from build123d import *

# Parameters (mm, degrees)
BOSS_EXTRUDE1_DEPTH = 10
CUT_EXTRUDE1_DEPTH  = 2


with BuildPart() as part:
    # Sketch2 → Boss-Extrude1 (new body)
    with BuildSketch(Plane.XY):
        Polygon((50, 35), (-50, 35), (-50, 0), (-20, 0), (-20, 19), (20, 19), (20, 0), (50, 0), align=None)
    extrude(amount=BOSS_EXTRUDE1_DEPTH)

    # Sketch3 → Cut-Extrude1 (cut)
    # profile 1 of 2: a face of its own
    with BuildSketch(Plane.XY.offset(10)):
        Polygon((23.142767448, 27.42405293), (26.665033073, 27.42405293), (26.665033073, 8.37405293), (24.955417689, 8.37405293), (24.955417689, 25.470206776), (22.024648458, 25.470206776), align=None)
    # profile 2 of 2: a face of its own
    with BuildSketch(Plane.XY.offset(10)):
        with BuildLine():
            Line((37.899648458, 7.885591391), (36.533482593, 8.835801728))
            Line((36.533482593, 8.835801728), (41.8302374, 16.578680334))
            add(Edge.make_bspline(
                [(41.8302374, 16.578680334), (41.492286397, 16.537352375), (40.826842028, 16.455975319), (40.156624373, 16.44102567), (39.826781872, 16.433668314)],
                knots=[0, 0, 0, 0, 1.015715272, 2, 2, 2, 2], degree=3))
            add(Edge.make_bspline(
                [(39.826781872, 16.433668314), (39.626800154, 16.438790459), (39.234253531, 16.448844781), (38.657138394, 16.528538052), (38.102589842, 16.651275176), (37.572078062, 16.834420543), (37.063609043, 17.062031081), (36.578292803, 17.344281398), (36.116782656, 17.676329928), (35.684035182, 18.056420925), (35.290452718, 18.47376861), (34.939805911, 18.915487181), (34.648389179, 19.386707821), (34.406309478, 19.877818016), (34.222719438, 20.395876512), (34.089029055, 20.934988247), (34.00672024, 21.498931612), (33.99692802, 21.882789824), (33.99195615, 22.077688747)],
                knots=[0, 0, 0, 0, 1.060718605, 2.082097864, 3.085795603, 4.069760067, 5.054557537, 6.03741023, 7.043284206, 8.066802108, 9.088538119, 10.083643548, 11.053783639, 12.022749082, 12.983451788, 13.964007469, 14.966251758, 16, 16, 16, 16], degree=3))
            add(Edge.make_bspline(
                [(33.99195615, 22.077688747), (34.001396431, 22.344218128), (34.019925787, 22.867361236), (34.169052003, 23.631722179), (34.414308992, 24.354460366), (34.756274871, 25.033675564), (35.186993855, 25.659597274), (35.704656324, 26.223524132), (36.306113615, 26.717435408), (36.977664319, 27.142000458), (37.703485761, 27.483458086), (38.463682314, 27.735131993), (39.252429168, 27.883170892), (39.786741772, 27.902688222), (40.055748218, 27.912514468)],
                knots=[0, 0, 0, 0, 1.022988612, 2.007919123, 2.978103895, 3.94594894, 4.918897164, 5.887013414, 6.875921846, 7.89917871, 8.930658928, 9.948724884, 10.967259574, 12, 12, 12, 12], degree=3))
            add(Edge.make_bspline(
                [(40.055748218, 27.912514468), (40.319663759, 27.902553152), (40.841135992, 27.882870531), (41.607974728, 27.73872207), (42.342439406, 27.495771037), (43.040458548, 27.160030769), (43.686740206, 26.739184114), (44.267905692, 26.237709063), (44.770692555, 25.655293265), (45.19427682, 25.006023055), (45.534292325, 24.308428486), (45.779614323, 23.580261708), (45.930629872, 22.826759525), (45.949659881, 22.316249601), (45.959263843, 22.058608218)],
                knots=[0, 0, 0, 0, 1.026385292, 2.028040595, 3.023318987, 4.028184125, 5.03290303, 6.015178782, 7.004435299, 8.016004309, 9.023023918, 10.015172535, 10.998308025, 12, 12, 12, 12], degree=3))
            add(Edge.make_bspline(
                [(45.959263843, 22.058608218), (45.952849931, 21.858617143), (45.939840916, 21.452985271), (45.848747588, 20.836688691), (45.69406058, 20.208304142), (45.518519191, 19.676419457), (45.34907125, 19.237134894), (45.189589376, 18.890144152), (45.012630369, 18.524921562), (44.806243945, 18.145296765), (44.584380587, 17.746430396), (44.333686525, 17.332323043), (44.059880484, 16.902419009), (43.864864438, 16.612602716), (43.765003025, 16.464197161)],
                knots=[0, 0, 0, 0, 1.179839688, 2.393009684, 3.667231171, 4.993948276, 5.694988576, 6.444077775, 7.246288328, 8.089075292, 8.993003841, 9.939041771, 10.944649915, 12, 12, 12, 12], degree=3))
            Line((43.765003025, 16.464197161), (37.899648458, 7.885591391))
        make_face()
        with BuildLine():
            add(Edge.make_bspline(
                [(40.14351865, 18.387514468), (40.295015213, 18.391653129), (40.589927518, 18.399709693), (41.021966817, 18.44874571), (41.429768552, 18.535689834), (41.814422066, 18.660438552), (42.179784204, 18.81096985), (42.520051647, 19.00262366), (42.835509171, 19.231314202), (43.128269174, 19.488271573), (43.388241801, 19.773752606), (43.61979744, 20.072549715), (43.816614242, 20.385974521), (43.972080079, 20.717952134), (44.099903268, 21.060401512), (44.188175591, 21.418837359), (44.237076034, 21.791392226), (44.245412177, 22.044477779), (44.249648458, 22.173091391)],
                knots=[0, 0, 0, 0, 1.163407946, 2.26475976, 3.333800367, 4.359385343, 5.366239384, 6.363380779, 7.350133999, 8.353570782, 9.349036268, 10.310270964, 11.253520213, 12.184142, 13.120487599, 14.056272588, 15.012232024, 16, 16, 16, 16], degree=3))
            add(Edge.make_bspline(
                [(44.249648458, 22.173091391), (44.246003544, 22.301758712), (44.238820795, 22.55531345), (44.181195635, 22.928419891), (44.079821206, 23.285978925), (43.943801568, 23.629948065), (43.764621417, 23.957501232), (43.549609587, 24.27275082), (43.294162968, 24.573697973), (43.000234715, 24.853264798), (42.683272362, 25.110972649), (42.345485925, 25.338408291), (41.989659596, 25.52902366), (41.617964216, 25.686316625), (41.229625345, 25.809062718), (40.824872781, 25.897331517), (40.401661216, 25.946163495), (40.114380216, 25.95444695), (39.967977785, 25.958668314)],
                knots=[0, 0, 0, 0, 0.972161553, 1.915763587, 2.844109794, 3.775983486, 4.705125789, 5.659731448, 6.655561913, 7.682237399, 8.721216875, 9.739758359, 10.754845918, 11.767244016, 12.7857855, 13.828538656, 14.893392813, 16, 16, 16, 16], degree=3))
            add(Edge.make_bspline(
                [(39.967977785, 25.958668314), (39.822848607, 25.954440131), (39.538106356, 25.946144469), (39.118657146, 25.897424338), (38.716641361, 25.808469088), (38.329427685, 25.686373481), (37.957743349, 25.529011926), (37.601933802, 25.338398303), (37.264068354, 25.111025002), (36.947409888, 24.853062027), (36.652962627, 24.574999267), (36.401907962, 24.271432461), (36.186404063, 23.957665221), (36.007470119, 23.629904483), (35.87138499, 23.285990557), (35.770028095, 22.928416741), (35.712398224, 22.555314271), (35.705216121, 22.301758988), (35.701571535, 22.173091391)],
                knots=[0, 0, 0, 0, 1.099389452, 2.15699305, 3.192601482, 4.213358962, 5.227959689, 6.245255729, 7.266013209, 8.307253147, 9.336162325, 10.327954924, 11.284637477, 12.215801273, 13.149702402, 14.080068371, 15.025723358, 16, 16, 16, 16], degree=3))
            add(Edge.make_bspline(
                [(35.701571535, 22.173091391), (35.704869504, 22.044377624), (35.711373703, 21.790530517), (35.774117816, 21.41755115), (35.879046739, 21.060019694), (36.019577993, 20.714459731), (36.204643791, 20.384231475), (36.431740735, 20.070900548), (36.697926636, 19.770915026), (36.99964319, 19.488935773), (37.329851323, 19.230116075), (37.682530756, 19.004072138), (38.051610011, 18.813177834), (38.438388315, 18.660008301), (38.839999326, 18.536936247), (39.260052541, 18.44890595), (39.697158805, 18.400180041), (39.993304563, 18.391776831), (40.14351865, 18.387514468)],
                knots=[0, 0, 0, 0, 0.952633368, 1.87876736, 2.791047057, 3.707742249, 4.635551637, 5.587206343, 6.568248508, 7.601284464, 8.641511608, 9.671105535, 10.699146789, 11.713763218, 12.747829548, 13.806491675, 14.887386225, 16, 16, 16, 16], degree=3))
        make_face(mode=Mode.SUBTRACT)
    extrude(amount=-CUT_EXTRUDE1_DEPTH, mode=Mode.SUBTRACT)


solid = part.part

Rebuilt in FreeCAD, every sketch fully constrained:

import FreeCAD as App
import Part
import Sketcher
Q = App.Units.Quantity

doc = App.newDocument("Part")
params = doc.addObject("Spreadsheet::Sheet", "Params")
for row, (alias, value) in enumerate([
    ("sketch1_width", "100 mm"),
    ("sketch1_width2", "30 mm"),
    ("sketch1_height", "35 mm"),
    ("sketch1_height2", "19 mm"),
    ("pad1_length", "10 mm"),
    ("sketch2_height", "19.05 mm"),
    ("pocket1_length", "2 mm"),
], start=1):
    params.set(f"A{row}", alias)
    params.set(f"B{row}", "=" + value)
    params.setAlias(f"B{row}", alias)

body = doc.addObject("PartDesign::Body", "Body")

sketch1 = body.newObject("Sketcher::SketchObject", "Sketch")
sketch1.AttachmentSupport = (doc.getObject("XY_Plane"), [""])
sketch1.MapMode = "FlatFace"
sketch1.addGeometry([
    Part.LineSegment(App.Vector(50, 35, 0), App.Vector(-50, 35, 0)),
    Part.LineSegment(App.Vector(-50, 35, 0), App.Vector(-50, 0, 0)),
    Part.LineSegment(App.Vector(-50, 0, 0), App.Vector(-20, 0, 0)),
    Part.LineSegment(App.Vector(-20, 0, 0), App.Vector(-20, 19, 0)),
    Part.LineSegment(App.Vector(-20, 19, 0), App.Vector(20, 19, 0)),
    Part.LineSegment(App.Vector(20, 19, 0), App.Vector(20, 0, 0)),
    Part.LineSegment(App.Vector(20, 0, 0), App.Vector(50, 0, 0)),
    Part.LineSegment(App.Vector(50, 0, 0), App.Vector(50, 35, 0)),
], False)
sketch1.addConstraint([
    Sketcher.Constraint("Coincident", 0, 2, 1, 1),
    Sketcher.Constraint("Coincident", 1, 2, 2, 1),
    Sketcher.Constraint("Coincident", 2, 2, 3, 1),
    Sketcher.Constraint("Coincident", 3, 2, 4, 1),
    Sketcher.Constraint("Coincident", 4, 2, 5, 1),
    Sketcher.Constraint("Coincident", 5, 2, 6, 1),
    Sketcher.Constraint("Coincident", 6, 2, 7, 1),
    Sketcher.Constraint("Coincident", 7, 2, 0, 1),
    Sketcher.Constraint("Horizontal", 0),
    Sketcher.Constraint("Vertical", 1),
    Sketcher.Constraint("Horizontal", 2),
    Sketcher.Constraint("Vertical", 3),
    Sketcher.Constraint("Horizontal", 4),
    Sketcher.Constraint("Vertical", 5),
    Sketcher.Constraint("Horizontal", 6),
    Sketcher.Constraint("Vertical", 7),
    Sketcher.Constraint("Symmetric", 2, 2, 5, 2, -1, 1),
    Sketcher.Constraint("Symmetric", 1, 2, 6, 2, -2),
    Sketcher.Constraint("DistanceX", 0, 2, 0, 1, Q("100 mm")),
    Sketcher.Constraint("DistanceX", 2, 1, 2, 2, Q("30 mm")),
    Sketcher.Constraint("DistanceY", 1, 2, 1, 1, Q("35 mm")),
    Sketcher.Constraint("DistanceY", 3, 1, 3, 2, Q("19 mm")),
])
sketch1.setExpression("Constraints[18]", "Params.sketch1_width")
sketch1.setExpression("Constraints[19]", "Params.sketch1_width2")
sketch1.setExpression("Constraints[20]", "Params.sketch1_height")
sketch1.setExpression("Constraints[21]", "Params.sketch1_height2")
pad1 = body.newObject("PartDesign::Pad", "Pad")
pad1.Profile = sketch1
pad1.setExpression("Length", "Params.pad1_length")

sketch2 = body.newObject("Sketcher::SketchObject", "Sketch001")
sketch2.AttachmentSupport = (doc.getObject("XY_Plane"), [""])
sketch2.MapMode = "FlatFace"
sketch2.AttachmentOffset = App.Placement(App.Vector(0, 0, 10), App.Rotation())
sketch2.addGeometry([
    Part.LineSegment(App.Vector(26.665033, 27.424053, 0), App.Vector(23.142767, 27.424053, 0)),
    Part.LineSegment(App.Vector(23.142767, 27.424053, 0), App.Vector(22.024648, 25.470207, 0)),
    Part.LineSegment(App.Vector(22.024648, 25.470207, 0), App.Vector(24.955418, 25.470207, 0)),
    Part.LineSegment(App.Vector(24.955418, 25.470207, 0), App.Vector(24.955418, 8.374053, 0)),
    Part.LineSegment(App.Vector(24.955418, 8.374053, 0), App.Vector(26.665033, 8.374053, 0)),
    Part.LineSegment(App.Vector(26.665033, 8.374053, 0), App.Vector(26.665033, 27.424053, 0)),
    Part.LineSegment(App.Vector(36.533483, 8.835802, 0), App.Vector(37.899648, 7.885591, 0)),
    Part.LineSegment(App.Vector(37.899648, 7.885591, 0), App.Vector(43.765003, 16.464197, 0)),
    Part.BSplineCurve([App.Vector(45.959264, 22.058608, 0), App.Vector(45.95285, 21.858617, 0), App.Vector(45.939841, 21.452985, 0), App.Vector(45.848748, 20.836689, 0), App.Vector(45.694061, 20.208304, 0), App.Vector(45.518519, 19.676419, 0), App.Vector(45.349071, 19.237135, 0), App.Vector(45.189589, 18.890144, 0), App.Vector(45.01263, 18.524922, 0), App.Vector(44.806244, 18.145297, 0), App.Vector(44.584381, 17.74643, 0), App.Vector(44.333687, 17.332323, 0), App.Vector(44.05988, 16.902419, 0), App.Vector(43.864864, 16.612603, 0), App.Vector(43.765003, 16.464197, 0)], [4, 1, 1, 1, 1, 1, 1, 1, 1, 1, 1, 1, 4], [0, 1.179839688, 2.393009684, 3.667231171, 4.993948276, 5.694988576, 6.444077775, 7.246288328, 8.089075292, 8.993003841, 9.939041771, 10.944649915, 12], False, 3, [1, 1, 1, 1, 1, 1, 1, 1, 1, 1, 1, 1, 1, 1, 1], False),
    Part.BSplineCurve([App.Vector(40.055748, 27.912514, 0), App.Vector(40.319664, 27.902553, 0), App.Vector(40.841136, 27.882871, 0), App.Vector(41.607975, 27.738722, 0), App.Vector(42.342439, 27.495771, 0), App.Vector(43.040459, 27.160031, 0), App.Vector(43.68674, 26.739184, 0), App.Vector(44.267906, 26.237709, 0), App.Vector(44.770693, 25.655293, 0), App.Vector(45.194277, 25.006023, 0), App.Vector(45.534292, 24.308428, 0), App.Vector(45.779614, 23.580262, 0), App.Vector(45.93063, 22.82676, 0), App.Vector(45.94966, 22.31625, 0), App.Vector(45.959264, 22.058608, 0)], [4, 1, 1, 1, 1, 1, 1, 1, 1, 1, 1, 1, 4], [0, 1.026385292, 2.028040595, 3.023318987, 4.028184125, 5.03290303, 6.015178782, 7.004435299, 8.016004309, 9.023023918, 10.015172535, 10.998308025, 12], False, 3, [1, 1, 1, 1, 1, 1, 1, 1, 1, 1, 1, 1, 1, 1, 1], False),
    Part.BSplineCurve([App.Vector(33.991956, 22.077689, 0), App.Vector(34.001396, 22.344218, 0), App.Vector(34.019926, 22.867361, 0), App.Vector(34.169052, 23.631722, 0), App.Vector(34.414309, 24.35446, 0), App.Vector(34.756275, 25.033676, 0), App.Vector(35.186994, 25.659597, 0), App.Vector(35.704656, 26.223524, 0), App.Vector(36.306114, 26.717435, 0), App.Vector(36.977664, 27.142, 0), App.Vector(37.703486, 27.483458, 0), App.Vector(38.463682, 27.735132, 0), App.Vector(39.252429, 27.883171, 0), App.Vector(39.786742, 27.902688, 0), App.Vector(40.055748, 27.912514, 0)], [4, 1, 1, 1, 1, 1, 1, 1, 1, 1, 1, 1, 4], [0, 1.022988612, 2.007919123, 2.978103895, 3.94594894, 4.918897164, 5.887013414, 6.875921846, 7.89917871, 8.930658928, 9.948724884, 10.967259574, 12], False, 3, [1, 1, 1, 1, 1, 1, 1, 1, 1, 1, 1, 1, 1, 1, 1], False),
    Part.BSplineCurve([App.Vector(39.826782, 16.433668, 0), App.Vector(39.6268, 16.43879, 0), App.Vector(39.234254, 16.448845, 0), App.Vector(38.657138, 16.528538, 0), App.Vector(38.10259, 16.651275, 0), App.Vector(37.572078, 16.834421, 0), App.Vector(37.063609, 17.062031, 0), App.Vector(36.578293, 17.344281, 0), App.Vector(36.116783, 17.67633, 0), App.Vector(35.684035, 18.056421, 0), App.Vector(35.290453, 18.473769, 0), App.Vector(34.939806, 18.915487, 0), App.Vector(34.648389, 19.386708, 0), App.Vector(34.406309, 19.877818, 0), App.Vector(34.222719, 20.395877, 0), App.Vector(34.089029, 20.934988, 0), App.Vector(34.00672, 21.498932, 0), App.Vector(33.996928, 21.88279, 0), App.Vector(33.991956, 22.077689, 0)], [4, 1, 1, 1, 1, 1, 1, 1, 1, 1, 1, 1, 1, 1, 1, 1, 4], [0, 1.060718605, 2.082097864, 3.085795603, 4.069760067, 5.054557537, 6.03741023, 7.043284206, 8.066802108, 9.088538119, 10.083643548, 11.053783639, 12.022749082, 12.983451788, 13.964007469, 14.966251758, 16], False, 3, [1, 1, 1, 1, 1, 1, 1, 1, 1, 1, 1, 1, 1, 1, 1, 1, 1, 1, 1], False),
    Part.BSplineCurve([App.Vector(41.830237, 16.57868, 0), App.Vector(41.492286, 16.537352, 0), App.Vector(40.826842, 16.455975, 0), App.Vector(40.156624, 16.441026, 0), App.Vector(39.826782, 16.433668, 0)], [4, 1, 4], [0, 1.015715272, 2], False, 3, [1, 1, 1, 1, 1], False),
    Part.LineSegment(App.Vector(41.830237, 16.57868, 0), App.Vector(36.533483, 8.835802, 0)),
    Part.BSplineCurve([App.Vector(35.701572, 22.173091, 0), App.Vector(35.70487, 22.044378, 0), App.Vector(35.711374, 21.790531, 0), App.Vector(35.774118, 21.417551, 0), App.Vector(35.879047, 21.06002, 0), App.Vector(36.019578, 20.71446, 0), App.Vector(36.204644, 20.384231, 0), App.Vector(36.431741, 20.070901, 0), App.Vector(36.697927, 19.770915, 0), App.Vector(36.999643, 19.488936, 0), App.Vector(37.329851, 19.230116, 0), App.Vector(37.682531, 19.004072, 0), App.Vector(38.05161, 18.813178, 0), App.Vector(38.438388, 18.660008, 0), App.Vector(38.839999, 18.536936, 0), App.Vector(39.260053, 18.448906, 0), App.Vector(39.697159, 18.40018, 0), App.Vector(39.993305, 18.391777, 0), App.Vector(40.143519, 18.387514, 0)], [4, 1, 1, 1, 1, 1, 1, 1, 1, 1, 1, 1, 1, 1, 1, 1, 4], [0, 0.952633368, 1.87876736, 2.791047057, 3.707742249, 4.635551637, 5.587206343, 6.568248508, 7.601284464, 8.641511608, 9.671105535, 10.699146789, 11.713763218, 12.747829548, 13.806491675, 14.887386225, 16], False, 3, [1, 1, 1, 1, 1, 1, 1, 1, 1, 1, 1, 1, 1, 1, 1, 1, 1, 1, 1], False),
    Part.BSplineCurve([App.Vector(39.967978, 25.958668, 0), App.Vector(39.822849, 25.95444, 0), App.Vector(39.538106, 25.946144, 0), App.Vector(39.118657, 25.897424, 0), App.Vector(38.716641, 25.808469, 0), App.Vector(38.329428, 25.686373, 0), App.Vector(37.957743, 25.529012, 0), App.Vector(37.601934, 25.338398, 0), App.Vector(37.264068, 25.111025, 0), App.Vector(36.94741, 24.853062, 0), App.Vector(36.652963, 24.574999, 0), App.Vector(36.401908, 24.271432, 0), App.Vector(36.186404, 23.957665, 0), App.Vector(36.00747, 23.629904, 0), App.Vector(35.871385, 23.285991, 0), App.Vector(35.770028, 22.928417, 0), App.Vector(35.712398, 22.555314, 0), App.Vector(35.705216, 22.301759, 0), App.Vector(35.701572, 22.173091, 0)], [4, 1, 1, 1, 1, 1, 1, 1, 1, 1, 1, 1, 1, 1, 1, 1, 4], [0, 1.099389452, 2.15699305, 3.192601482, 4.213358962, 5.227959689, 6.245255729, 7.266013209, 8.307253147, 9.336162325, 10.327954924, 11.284637477, 12.215801273, 13.149702402, 14.080068371, 15.025723358, 16], False, 3, [1, 1, 1, 1, 1, 1, 1, 1, 1, 1, 1, 1, 1, 1, 1, 1, 1, 1, 1], False),
    Part.BSplineCurve([App.Vector(44.249648, 22.173091, 0), App.Vector(44.246004, 22.301759, 0), App.Vector(44.238821, 22.555313, 0), App.Vector(44.181196, 22.92842, 0), App.Vector(44.079821, 23.285979, 0), App.Vector(43.943802, 23.629948, 0), App.Vector(43.764621, 23.957501, 0), App.Vector(43.54961, 24.272751, 0), App.Vector(43.294163, 24.573698, 0), App.Vector(43.000235, 24.853265, 0), App.Vector(42.683272, 25.110973, 0), App.Vector(42.345486, 25.338408, 0), App.Vector(41.98966, 25.529024, 0), App.Vector(41.617964, 25.686317, 0), App.Vector(41.229625, 25.809063, 0), App.Vector(40.824873, 25.897332, 0), App.Vector(40.401661, 25.946163, 0), App.Vector(40.11438, 25.954447, 0), App.Vector(39.967978, 25.958668, 0)], [4, 1, 1, 1, 1, 1, 1, 1, 1, 1, 1, 1, 1, 1, 1, 1, 4], [0, 0.972161553, 1.915763587, 2.844109794, 3.775983486, 4.705125789, 5.659731448, 6.655561913, 7.682237399, 8.721216875, 9.739758359, 10.754845918, 11.767244016, 12.7857855, 13.828538656, 14.893392813, 16], False, 3, [1, 1, 1, 1, 1, 1, 1, 1, 1, 1, 1, 1, 1, 1, 1, 1, 1, 1, 1], False),
    Part.BSplineCurve([App.Vector(40.143519, 18.387514, 0), App.Vector(40.295015, 18.391653, 0), App.Vector(40.589928, 18.39971, 0), App.Vector(41.021967, 18.448746, 0), App.Vector(41.429769, 18.53569, 0), App.Vector(41.814422, 18.660439, 0), App.Vector(42.179784, 18.81097, 0), App.Vector(42.520052, 19.002624, 0), App.Vector(42.835509, 19.231314, 0), App.Vector(43.128269, 19.488272, 0), App.Vector(43.388242, 19.773753, 0), App.Vector(43.619797, 20.07255, 0), App.Vector(43.816614, 20.385975, 0), App.Vector(43.97208, 20.717952, 0), App.Vector(44.099903, 21.060402, 0), App.Vector(44.188176, 21.418837, 0), App.Vector(44.237076, 21.791392, 0), App.Vector(44.245412, 22.044478, 0), App.Vector(44.249648, 22.173091, 0)], [4, 1, 1, 1, 1, 1, 1, 1, 1, 1, 1, 1, 1, 1, 1, 1, 4], [0, 1.163407946, 2.26475976, 3.333800367, 4.359385343, 5.366239384, 6.363380779, 7.350133999, 8.353570782, 9.349036268, 10.310270964, 11.253520213, 12.184142, 13.120487599, 14.056272588, 15.012232024, 16], False, 3, [1, 1, 1, 1, 1, 1, 1, 1, 1, 1, 1, 1, 1, 1, 1, 1, 1, 1, 1], False),
], False)
sketch2.addConstraint([
    Sketcher.Constraint("Block", 8),
    Sketcher.Constraint("Block", 9),
    Sketcher.Constraint("Block", 10),
    Sketcher.Constraint("Block", 11),
    Sketcher.Constraint("Block", 12),
    Sketcher.Constraint("Block", 14),
    Sketcher.Constraint("Block", 15),
    Sketcher.Constraint("Block", 16),
    Sketcher.Constraint("Block", 17),
    Sketcher.Constraint("Coincident", 0, 2, 1, 1),
    Sketcher.Constraint("Coincident", 1, 2, 2, 1),
    Sketcher.Constraint("Coincident", 2, 2, 3, 1),
    Sketcher.Constraint("Coincident", 3, 2, 4, 1),
    Sketcher.Constraint("Coincident", 4, 2, 5, 1),
    Sketcher.Constraint("Coincident", 5, 2, 0, 1),
    Sketcher.Constraint("Coincident", 6, 2, 7, 1),
    Sketcher.Constraint("Coincident", 7, 2, 8, 2),
    Sketcher.Constraint("Coincident", 12, 1, 13, 1),
    Sketcher.Constraint("Coincident", 13, 2, 6, 1),
    Sketcher.Constraint("Horizontal", 0),
    Sketcher.Constraint("Horizontal", 2),
    Sketcher.Constraint("Vertical", 3),
    Sketcher.Constraint("Horizontal", 4),
    Sketcher.Constraint("Vertical", 5),
    Sketcher.Constraint("DistanceY", 5, 1, 5, 2, Q("19.05 mm")),
    Sketcher.Constraint("DistanceX", 1, 2, 6, 2, Q("15.875 mm")),
    Sketcher.Constraint("DistanceX", 2, 1, 2, 2, Q("2.930769 mm")),
    Sketcher.Constraint("DistanceY", -1, 1, 13, 2, Q("8.835802 mm")),
    Sketcher.Constraint("DistanceX", 0, 2, 0, 1, Q("3.522266 mm")),
    Sketcher.Constraint("DistanceX", 4, 1, 4, 2, Q("1.709615 mm")),
    Sketcher.Constraint("DistanceY", 3, 2, 3, 1, Q("17.096154 mm")),
    Sketcher.Constraint("DistanceX", -1, 1, 1, 2, Q("22.024648 mm")),
    Sketcher.Constraint("DistanceY", -1, 1, 6, 2, Q("7.885591 mm")),
    Sketcher.Constraint("DistanceY", 6, 2, 4, 2, Q("0.488462 mm")),
    Sketcher.Constraint("DistanceX", 4, 2, 13, 2, Q("9.86845 mm")),
])
sketch2.setExpression("Constraints[24]", "Params.sketch2_height")
pocket1 = body.newObject("PartDesign::Pocket", "Pocket")
pocket1.Profile = sketch2
pocket1.setExpression("Length", "Params.pocket1_length")

doc.recompute()
